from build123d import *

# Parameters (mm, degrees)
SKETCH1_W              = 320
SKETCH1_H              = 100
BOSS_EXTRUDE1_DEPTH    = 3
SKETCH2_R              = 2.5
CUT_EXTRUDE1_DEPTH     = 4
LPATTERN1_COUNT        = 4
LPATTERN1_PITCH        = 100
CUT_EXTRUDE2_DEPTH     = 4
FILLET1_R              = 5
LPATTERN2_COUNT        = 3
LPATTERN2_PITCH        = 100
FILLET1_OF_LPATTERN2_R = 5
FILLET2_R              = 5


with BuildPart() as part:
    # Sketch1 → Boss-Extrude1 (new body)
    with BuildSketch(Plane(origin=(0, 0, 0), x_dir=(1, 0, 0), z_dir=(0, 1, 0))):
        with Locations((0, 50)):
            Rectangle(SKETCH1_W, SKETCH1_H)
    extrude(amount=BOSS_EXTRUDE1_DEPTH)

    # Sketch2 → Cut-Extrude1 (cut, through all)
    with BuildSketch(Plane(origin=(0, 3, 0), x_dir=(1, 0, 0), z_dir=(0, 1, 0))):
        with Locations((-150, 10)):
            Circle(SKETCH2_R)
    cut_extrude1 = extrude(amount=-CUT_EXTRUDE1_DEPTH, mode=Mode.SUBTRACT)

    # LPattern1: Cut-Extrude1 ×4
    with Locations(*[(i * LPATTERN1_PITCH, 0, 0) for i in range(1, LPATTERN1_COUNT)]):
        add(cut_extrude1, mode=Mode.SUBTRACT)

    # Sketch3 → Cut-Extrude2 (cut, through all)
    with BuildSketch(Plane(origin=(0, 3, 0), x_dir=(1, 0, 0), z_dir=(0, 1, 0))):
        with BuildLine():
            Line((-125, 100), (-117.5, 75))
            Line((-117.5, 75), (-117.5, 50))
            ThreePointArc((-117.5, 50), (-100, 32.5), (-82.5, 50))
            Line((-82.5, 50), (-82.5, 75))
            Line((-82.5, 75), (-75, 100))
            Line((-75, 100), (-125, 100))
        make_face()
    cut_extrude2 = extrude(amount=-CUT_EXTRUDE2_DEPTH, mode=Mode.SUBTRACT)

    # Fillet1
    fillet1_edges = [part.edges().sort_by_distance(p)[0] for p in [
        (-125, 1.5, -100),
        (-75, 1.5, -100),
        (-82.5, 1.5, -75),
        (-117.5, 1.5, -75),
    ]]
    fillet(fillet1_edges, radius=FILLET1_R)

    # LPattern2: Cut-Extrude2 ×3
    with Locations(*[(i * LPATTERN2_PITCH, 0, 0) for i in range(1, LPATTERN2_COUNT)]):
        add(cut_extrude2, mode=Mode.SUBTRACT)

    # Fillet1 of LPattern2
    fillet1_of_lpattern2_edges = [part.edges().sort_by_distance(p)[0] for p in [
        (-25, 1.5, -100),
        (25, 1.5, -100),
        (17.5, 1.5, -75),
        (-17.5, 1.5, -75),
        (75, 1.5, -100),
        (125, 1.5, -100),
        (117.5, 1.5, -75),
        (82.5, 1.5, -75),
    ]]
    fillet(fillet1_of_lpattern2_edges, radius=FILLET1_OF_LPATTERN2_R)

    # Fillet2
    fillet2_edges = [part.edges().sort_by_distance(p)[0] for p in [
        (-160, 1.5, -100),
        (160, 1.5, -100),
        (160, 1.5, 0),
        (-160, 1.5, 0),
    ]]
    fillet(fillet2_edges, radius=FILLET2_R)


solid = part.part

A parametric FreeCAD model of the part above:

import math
import FreeCAD as App
import Part
import Sketcher


def edges_at(feature, points):
    """Names of the edges that pass closest to the given points."""
    edges = feature.Shape.Edges
    near = lambda p: min(range(len(edges)), key=lambda i: edges[i].distToShape(Part.Vertex(*p))[0])
    return sorted({f"Edge{near(p) + 1}" for p in points})

doc = App.newDocument("Part")
body = doc.addObject("PartDesign::Body", "Body")

# Sketch on XZ plane
sketch1 = doc.addObject("Sketcher::SketchObject", "Sketch")
body.addObject(sketch1)
sketch1.AttachmentSupport = (doc.XZ_Plane, [""])
sketch1.MapMode = "FlatFace"
sketch1.addGeometry([
    Part.LineSegment(App.Vector(-160, -100, 0), App.Vector(-160, 0, 0)),
    Part.LineSegment(App.Vector(-160, 0, 0), App.Vector(160, 0, 0)),
    Part.LineSegment(App.Vector(160, 0, 0), App.Vector(160, -100, 0)),
    Part.LineSegment(App.Vector(160, -100, 0), App.Vector(-160, -100, 0)),
], False)
sketch1.addConstraint([
    Sketcher.Constraint("Coincident", 0, 2, 1, 1),
    Sketcher.Constraint("Coincident", 1, 2, 2, 1),
    Sketcher.Constraint("Coincident", 2, 2, 3, 1),
    Sketcher.Constraint("Coincident", 3, 2, 0, 1),
    Sketcher.Constraint("Vertical", 0),
    Sketcher.Constraint("Horizontal", 1),
    Sketcher.Constraint("Vertical", 2),
    Sketcher.Constraint("Horizontal", 3),
    Sketcher.Constraint("Symmetric", 0, 2, 1, 2, -1, 1),
    Sketcher.Constraint("DistanceX", 1, 1, 1, 2, 320.0),
    Sketcher.Constraint("DistanceY", 0, 1, 0, 2, 100.0),
])
pad1 = doc.addObject("PartDesign::Pad", "Pad")
body.addObject(pad1)
pad1.Profile = sketch1
pad1.Length = 3
pad1.Reversed = True

# Sketch on XZ plane
sketch2 = doc.addObject("Sketcher::SketchObject", "Sketch001")
body.addObject(sketch2)
sketch2.AttachmentSupport = (doc.XZ_Plane, [""])
sketch2.MapMode = "FlatFace"
sketch2.AttachmentOffset = App.Placement(App.Vector(0, 0, -3), App.Rotation())
sketch2.addGeometry(Part.Circle(App.Vector(-150, -10, 0), App.Vector(0, 0, 1), 2.5), False)
sketch2.addConstraint([
    Sketcher.Constraint("Diameter", 0, 5.0),
    Sketcher.Constraint("DistanceX", 0, 3, -1, 1, 150.0),
    Sketcher.Constraint("DistanceY", 0, 3, -1, 1, 10.0),
])
pocket1 = doc.addObject("PartDesign::Pocket", "Pocket")
body.addObject(pocket1)
pocket1.Profile = sketch2
pocket1.Type = "ThroughAll"
pocket1.Reversed = True
doc.recompute()

linearpattern = doc.addObject("PartDesign::LinearPattern", "LinearPattern")
body.addObject(linearpattern)
linearpattern.Originals = [pocket1]
linearpattern.Direction = (doc.X_Axis, [""])
linearpattern.Mode = "offset"
linearpattern.Offset = 100
linearpattern.Occurrences = 4
body.Tip = linearpattern

# Sketch on XZ plane
sketch3 = doc.addObject("Sketcher::SketchObject", "Sketch002")
body.addObject(sketch3)
sketch3.AttachmentSupport = (doc.XZ_Plane, [""])
sketch3.MapMode = "FlatFace"
sketch3.AttachmentOffset = App.Placement(App.Vector(0, 0, -3), App.Rotation())
sketch3.addGeometry([
    Part.LineSegment(App.Vector(-125, -100, 0), App.Vector(-117.5, -75, 0)),  # 0
    Part.LineSegment(App.Vector(-117.5, -75, 0), App.Vector(-117.5, -50, 0)),  # 1
    Part.ArcOfCircle(Part.Circle(App.Vector(-100, -50, 0), App.Vector(0, 0, 1), 17.5), math.radians(0), math.radians(180)),  # 2
    Part.LineSegment(App.Vector(-82.5, -50, 0), App.Vector(-82.5, -75, 0)),  # 3
    Part.LineSegment(App.Vector(-82.5, -75, 0), App.Vector(-75, -100, 0)),  # 4
    Part.LineSegment(App.Vector(-75, -100, 0), App.Vector(-125, -100, 0)),  # 5
], False)
sketch3.addConstraint([
    Sketcher.Constraint("Coincident", 0, 2, 1, 1),
    Sketcher.Constraint("Tangent", 1, 2, 2, 2),
    Sketcher.Constraint("Tangent", 2, 1, 3, 1),
    Sketcher.Constraint("Coincident", 3, 2, 4, 1),
    Sketcher.Constraint("Coincident", 4, 2, 5, 1),
    Sketcher.Constraint("Coincident", 5, 2, 0, 1),
    Sketcher.Constraint("Vertical", 1),
    Sketcher.Constraint("Vertical", 3),
    Sketcher.Constraint("Horizontal", 5),
    Sketcher.Constraint("Horizontal", 0, 2, 3, 2),
    Sketcher.Constraint("Equal", 0, 4),
    Sketcher.Constraint("Radius", 2, 17.5),
    Sketcher.Constraint("DistanceX", 5, 2, 5, 1, 50.0),
    Sketcher.Constraint("DistanceY", 1, 1, 1, 2, 25.0),
    Sketcher.Constraint("DistanceX", 2, 3, -1, 1, 100.0),
    Sketcher.Constraint("DistanceY", 2, 3, -1, 1, 50.0),
    Sketcher.Constraint("DistanceY", 4, 2, -1, 1, 100.0),
])
pocket2 = doc.addObject("PartDesign::Pocket", "Pocket001")
body.addObject(pocket2)
pocket2.Profile = sketch3
pocket2.Type = "ThroughAll"
pocket2.Reversed = True
doc.recompute()

fillet = doc.addObject("PartDesign::Fillet", "Fillet")
body.addObject(fillet)
fillet.Base = (pocket2, edges_at(pocket2, [
    (-125, 1.5, -100),
    (-75, 1.5, -100),
    (-82.5, 1.5, -75),
    (-117.5, 1.5, -75),
]))
fillet.Radius = 5
doc.recompute()

linearpattern2 = doc.addObject("PartDesign::LinearPattern", "LinearPattern001")
body.addObject(linearpattern2)
linearpattern2.Originals = [pocket2]
linearpattern2.Direction = (doc.X_Axis, [""])
linearpattern2.Mode = "offset"
linearpattern2.Offset = 100
linearpattern2.Occurrences = 3
body.Tip = linearpattern2
doc.recompute()

fillet2 = doc.addObject("PartDesign::Fillet", "Fillet001")
body.addObject(fillet2)
fillet2.Base = (linearpattern2, edges_at(linearpattern2, [
    (-25, 1.5, -100),
    (25, 1.5, -100),
    (17.5, 1.5, -75),
    (-17.5, 1.5, -75),
    (75, 1.5, -100),
    (125, 1.5, -100),
    (117.5, 1.5, -75),
    (82.5, 1.5, -75),
]))
fillet2.Radius = 5
doc.recompute()

fillet3 = doc.addObject("PartDesign::Fillet", "Fillet002")
body.addObject(fillet3)
fillet3.Base = (fillet2, edges_at(fillet2, [
    (-160, 1.5, -100),
    (160, 1.5, -100),
    (160, 1.5, 0),
    (-160, 1.5, 0),
]))
fillet3.Radius = 5

doc.recompute()
